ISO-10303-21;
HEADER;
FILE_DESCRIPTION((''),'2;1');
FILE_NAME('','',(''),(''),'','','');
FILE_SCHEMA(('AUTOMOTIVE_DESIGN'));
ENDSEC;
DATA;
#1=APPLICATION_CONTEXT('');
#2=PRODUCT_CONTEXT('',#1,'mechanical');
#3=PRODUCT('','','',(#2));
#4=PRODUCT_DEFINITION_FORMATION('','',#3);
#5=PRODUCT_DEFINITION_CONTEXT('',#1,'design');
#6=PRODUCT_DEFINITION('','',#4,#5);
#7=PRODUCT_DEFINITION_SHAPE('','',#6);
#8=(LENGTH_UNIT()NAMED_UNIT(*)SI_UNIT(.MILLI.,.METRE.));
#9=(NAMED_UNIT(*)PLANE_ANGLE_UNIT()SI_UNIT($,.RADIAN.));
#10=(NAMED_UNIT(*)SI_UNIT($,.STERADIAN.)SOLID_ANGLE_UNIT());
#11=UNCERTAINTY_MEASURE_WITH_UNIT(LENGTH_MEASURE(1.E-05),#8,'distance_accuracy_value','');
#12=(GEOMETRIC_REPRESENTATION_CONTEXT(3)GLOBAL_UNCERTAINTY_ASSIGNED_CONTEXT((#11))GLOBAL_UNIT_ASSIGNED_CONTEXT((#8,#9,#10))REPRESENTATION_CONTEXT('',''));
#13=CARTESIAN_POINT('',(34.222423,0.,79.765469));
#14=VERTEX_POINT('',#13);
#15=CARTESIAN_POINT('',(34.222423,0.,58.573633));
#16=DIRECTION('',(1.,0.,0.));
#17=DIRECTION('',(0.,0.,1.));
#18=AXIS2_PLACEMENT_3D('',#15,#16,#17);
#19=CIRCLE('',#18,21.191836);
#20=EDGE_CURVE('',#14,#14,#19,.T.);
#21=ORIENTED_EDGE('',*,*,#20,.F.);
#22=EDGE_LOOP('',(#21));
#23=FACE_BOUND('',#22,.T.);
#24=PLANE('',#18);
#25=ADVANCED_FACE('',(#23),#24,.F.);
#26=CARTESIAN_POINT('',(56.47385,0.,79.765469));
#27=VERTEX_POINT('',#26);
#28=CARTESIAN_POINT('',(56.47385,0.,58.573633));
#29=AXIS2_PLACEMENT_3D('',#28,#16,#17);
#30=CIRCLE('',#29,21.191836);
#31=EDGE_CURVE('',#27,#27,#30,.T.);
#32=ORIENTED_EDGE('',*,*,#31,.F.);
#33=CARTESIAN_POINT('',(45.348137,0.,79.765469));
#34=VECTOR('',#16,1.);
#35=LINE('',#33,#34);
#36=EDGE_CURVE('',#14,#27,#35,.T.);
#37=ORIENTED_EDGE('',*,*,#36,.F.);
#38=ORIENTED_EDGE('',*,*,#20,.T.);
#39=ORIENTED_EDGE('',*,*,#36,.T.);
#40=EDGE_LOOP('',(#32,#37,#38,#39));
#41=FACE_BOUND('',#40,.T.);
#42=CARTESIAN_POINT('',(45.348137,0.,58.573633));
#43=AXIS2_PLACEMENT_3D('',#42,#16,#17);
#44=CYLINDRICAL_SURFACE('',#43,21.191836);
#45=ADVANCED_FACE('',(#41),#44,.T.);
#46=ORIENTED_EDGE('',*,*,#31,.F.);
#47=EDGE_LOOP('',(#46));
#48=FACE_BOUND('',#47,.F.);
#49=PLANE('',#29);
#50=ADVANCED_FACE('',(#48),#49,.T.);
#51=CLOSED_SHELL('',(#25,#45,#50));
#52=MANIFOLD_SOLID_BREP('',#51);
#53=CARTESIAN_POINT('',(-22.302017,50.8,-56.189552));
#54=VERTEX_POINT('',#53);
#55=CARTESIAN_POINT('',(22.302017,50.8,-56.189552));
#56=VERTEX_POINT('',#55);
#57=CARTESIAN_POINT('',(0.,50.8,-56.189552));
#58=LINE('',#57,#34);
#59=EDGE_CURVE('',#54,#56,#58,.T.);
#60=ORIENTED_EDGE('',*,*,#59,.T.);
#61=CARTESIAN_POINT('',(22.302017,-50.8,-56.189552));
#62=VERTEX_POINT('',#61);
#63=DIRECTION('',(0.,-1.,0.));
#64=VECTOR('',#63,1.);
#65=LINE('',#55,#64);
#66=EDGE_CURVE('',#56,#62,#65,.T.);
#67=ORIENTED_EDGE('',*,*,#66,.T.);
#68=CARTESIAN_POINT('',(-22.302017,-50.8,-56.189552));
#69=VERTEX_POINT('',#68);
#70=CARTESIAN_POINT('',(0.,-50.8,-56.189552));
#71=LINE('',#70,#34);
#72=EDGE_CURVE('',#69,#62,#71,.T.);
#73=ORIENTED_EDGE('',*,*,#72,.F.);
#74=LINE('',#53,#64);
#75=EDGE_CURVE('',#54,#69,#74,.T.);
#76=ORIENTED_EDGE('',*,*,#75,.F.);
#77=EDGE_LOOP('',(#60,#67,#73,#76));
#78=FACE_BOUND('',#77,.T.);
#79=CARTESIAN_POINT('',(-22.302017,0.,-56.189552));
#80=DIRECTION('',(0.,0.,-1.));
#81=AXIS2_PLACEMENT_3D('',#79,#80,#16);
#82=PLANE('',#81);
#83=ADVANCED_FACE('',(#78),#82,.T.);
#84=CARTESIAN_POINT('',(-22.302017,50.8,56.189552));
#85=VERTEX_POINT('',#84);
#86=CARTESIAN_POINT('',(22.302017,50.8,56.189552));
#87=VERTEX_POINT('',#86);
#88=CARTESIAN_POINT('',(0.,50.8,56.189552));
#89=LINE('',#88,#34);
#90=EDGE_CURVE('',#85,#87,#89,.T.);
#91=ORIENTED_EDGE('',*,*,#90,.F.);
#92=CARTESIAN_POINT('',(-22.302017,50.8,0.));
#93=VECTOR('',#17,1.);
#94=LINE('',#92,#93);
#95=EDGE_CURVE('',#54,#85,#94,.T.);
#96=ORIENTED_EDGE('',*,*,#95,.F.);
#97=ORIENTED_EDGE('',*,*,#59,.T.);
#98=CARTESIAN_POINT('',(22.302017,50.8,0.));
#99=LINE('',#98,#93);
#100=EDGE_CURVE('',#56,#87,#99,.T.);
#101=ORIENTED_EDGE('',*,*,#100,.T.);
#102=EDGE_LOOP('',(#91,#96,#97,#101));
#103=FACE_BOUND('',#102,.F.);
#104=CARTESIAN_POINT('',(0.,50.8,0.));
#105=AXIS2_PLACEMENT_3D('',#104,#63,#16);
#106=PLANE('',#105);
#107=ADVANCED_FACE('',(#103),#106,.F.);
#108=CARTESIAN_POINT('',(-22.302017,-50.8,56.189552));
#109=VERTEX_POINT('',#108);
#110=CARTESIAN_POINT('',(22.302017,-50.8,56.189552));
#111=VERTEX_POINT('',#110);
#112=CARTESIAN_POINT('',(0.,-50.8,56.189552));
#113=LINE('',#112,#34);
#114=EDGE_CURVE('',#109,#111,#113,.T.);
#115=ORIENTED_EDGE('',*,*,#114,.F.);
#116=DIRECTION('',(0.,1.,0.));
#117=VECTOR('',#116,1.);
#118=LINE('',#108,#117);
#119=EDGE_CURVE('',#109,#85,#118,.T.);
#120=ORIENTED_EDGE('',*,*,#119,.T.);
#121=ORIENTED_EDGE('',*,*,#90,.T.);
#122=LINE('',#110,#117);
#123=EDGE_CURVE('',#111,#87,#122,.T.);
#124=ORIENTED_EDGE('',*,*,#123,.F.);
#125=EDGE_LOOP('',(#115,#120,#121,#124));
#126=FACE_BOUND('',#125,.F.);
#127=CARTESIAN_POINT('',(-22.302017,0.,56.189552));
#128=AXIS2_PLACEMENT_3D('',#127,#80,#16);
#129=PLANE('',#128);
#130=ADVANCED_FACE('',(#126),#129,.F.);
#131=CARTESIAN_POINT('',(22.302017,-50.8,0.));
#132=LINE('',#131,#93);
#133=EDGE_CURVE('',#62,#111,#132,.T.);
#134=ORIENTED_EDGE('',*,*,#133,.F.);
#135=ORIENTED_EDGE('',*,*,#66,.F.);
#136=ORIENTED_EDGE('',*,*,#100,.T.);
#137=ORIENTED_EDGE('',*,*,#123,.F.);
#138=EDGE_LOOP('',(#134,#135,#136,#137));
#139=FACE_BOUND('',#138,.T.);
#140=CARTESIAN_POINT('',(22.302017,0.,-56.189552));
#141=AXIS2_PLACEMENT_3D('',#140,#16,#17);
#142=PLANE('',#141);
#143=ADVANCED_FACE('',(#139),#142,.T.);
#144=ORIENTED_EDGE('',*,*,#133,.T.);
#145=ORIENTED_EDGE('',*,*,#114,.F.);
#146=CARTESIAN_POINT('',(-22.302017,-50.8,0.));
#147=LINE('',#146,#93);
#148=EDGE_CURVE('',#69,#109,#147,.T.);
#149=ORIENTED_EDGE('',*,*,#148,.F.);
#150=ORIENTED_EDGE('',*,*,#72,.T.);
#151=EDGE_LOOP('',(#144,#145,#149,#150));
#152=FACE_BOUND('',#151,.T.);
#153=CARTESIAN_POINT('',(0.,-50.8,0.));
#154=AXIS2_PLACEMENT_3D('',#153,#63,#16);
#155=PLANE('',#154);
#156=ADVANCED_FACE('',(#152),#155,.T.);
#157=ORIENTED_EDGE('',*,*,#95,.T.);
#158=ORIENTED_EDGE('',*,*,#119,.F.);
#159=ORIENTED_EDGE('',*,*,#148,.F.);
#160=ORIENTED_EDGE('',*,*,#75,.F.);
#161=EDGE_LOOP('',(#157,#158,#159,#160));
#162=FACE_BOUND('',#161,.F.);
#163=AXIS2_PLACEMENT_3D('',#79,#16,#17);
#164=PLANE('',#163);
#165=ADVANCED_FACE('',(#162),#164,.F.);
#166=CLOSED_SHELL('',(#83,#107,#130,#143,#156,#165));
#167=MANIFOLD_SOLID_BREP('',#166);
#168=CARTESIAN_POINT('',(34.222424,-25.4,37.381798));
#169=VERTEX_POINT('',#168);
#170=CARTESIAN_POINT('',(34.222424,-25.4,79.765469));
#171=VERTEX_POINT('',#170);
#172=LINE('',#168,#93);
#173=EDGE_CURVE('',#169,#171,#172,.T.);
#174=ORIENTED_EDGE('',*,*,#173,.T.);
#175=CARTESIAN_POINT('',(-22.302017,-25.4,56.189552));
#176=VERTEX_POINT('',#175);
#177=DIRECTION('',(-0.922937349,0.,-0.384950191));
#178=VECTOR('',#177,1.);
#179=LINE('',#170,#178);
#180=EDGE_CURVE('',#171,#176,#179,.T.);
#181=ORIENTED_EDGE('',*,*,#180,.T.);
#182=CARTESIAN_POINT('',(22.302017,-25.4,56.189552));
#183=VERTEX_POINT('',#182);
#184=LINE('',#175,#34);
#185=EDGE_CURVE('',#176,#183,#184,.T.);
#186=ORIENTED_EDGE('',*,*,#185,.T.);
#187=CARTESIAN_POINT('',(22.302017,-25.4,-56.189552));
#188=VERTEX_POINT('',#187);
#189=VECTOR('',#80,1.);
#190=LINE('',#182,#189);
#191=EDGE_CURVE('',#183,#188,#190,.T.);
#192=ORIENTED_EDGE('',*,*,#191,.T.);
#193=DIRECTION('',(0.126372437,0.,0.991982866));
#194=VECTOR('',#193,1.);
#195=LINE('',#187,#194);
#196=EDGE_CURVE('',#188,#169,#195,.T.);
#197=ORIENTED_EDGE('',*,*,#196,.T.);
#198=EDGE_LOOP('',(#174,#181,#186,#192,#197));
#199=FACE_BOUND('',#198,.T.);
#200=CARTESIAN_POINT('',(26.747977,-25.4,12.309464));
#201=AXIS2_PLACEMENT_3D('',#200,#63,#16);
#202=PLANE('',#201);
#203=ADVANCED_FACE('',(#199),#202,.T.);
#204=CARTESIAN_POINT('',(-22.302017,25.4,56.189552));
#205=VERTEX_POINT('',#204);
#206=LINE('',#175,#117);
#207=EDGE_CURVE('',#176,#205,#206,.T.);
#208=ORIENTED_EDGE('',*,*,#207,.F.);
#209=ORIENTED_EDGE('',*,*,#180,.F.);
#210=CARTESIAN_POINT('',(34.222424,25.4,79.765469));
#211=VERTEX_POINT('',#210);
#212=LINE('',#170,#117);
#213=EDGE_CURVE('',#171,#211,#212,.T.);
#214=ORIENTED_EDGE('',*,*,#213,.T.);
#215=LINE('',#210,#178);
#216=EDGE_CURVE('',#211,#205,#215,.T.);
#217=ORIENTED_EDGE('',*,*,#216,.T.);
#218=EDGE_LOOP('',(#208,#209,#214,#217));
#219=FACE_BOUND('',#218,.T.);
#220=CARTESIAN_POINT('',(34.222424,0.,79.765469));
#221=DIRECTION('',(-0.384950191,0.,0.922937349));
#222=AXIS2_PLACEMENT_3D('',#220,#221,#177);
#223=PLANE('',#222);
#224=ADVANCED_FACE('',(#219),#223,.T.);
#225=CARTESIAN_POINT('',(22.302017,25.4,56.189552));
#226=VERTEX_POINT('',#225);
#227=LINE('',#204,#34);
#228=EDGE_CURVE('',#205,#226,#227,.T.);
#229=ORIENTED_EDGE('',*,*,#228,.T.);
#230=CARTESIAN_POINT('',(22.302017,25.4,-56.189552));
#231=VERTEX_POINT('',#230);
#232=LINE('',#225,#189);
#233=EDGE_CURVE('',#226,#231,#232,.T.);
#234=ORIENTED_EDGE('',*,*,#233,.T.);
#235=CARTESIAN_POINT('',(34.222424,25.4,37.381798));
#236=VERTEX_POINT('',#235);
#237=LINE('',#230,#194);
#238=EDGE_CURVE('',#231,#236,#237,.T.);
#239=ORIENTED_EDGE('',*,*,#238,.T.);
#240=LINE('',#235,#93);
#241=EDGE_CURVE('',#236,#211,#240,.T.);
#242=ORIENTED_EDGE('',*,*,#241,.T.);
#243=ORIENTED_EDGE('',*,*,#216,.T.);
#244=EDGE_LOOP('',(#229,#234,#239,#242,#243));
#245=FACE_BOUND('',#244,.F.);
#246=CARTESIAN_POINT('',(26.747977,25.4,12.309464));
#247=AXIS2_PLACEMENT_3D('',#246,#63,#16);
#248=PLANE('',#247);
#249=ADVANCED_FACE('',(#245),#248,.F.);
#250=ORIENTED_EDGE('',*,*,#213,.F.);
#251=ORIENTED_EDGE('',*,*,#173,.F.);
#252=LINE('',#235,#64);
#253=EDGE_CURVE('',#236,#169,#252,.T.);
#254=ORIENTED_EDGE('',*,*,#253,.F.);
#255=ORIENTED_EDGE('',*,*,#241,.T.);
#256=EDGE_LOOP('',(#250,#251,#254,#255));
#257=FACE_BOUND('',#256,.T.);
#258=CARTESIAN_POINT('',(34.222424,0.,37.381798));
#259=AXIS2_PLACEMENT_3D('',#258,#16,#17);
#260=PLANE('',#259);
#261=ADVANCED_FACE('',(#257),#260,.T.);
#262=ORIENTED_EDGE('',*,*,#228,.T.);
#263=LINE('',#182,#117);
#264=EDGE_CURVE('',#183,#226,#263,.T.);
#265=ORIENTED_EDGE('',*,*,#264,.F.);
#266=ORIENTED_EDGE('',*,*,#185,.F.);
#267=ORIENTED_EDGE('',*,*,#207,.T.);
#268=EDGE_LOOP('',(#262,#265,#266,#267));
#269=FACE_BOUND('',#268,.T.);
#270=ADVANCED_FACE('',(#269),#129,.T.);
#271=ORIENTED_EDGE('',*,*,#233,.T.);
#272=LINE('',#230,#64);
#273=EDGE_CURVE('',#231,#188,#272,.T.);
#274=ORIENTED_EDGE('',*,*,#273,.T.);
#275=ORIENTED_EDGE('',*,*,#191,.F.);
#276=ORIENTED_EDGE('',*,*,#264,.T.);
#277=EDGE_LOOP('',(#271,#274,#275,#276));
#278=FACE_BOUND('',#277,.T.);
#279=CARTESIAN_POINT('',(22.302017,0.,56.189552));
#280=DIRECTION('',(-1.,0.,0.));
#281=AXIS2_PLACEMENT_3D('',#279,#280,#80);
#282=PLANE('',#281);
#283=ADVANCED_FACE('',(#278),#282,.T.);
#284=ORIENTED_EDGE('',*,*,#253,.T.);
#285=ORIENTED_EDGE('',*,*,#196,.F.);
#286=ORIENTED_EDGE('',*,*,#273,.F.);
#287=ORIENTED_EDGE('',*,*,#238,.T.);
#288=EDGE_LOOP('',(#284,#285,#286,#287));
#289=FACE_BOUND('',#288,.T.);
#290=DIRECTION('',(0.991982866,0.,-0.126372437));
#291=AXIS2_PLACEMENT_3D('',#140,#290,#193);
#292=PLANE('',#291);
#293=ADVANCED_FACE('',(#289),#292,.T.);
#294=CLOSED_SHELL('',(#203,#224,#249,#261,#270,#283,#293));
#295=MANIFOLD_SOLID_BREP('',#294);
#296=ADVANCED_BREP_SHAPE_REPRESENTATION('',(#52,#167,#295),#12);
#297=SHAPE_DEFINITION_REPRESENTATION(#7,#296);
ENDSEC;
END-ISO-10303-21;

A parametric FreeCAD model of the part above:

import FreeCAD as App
import Part
import Sketcher

V = App.Vector
Q = App.Units.Quantity


def add_polygon(sketch, points):
    """Adds a closed chain of lines whose ends are joined by coincident constraints."""
    first, n = sketch.GeometryCount, len(points)
    for a, b in zip(points, points[1:] + points[:1]):
        sketch.addGeometry(Part.LineSegment(App.Vector(*a, 0), App.Vector(*b, 0)), False)
    for i in range(n):
        sketch.addConstraint(Sketcher.Constraint("Coincident", first + i, 2, first + (i + 1) % n, 1))

doc = App.newDocument("Part")
body = doc.addObject("PartDesign::Body", "Body")

# Sketch on XZ plane
sketch1 = body.newObject("Sketcher::SketchObject", "Sketch")
sketch1.AttachmentSupport = (doc.getObject("XZ_Plane"), [""])
sketch1.MapMode = "FlatFace"
add_polygon(sketch1, [(-22, 56), (-22, -56), (22, -56), (22, 56)])  # lines 0-3
sketch1.addConstraint(Sketcher.Constraint("Vertical", 0))
sketch1.addConstraint(Sketcher.Constraint("Horizontal", 1))
sketch1.addConstraint(Sketcher.Constraint("Vertical", 2))
sketch1.addConstraint(Sketcher.Constraint("Horizontal", 3))
sketch1.addConstraint(Sketcher.Constraint("Symmetric", 0, 2, 2, 2, -1, 1))
sketch1.addConstraint(Sketcher.Constraint("DistanceX", 1, 1, 1, 2, 44.604034))
sketch1.addConstraint(Sketcher.Constraint("DistanceY", 0, 2, 0, 1, 112.379104))
pad1 = body.newObject("PartDesign::Pad", "Pad")
pad1.Profile = sketch1
pad1.Length = Q("4 in")
pad1.Midplane = True
body2 = doc.addObject("PartDesign::Body", "Body001")

# Sketch on XZ plane
sketch2 = body2.newObject("Sketcher::SketchObject", "Sketch001")
sketch2.AttachmentSupport = (doc.getObject("XZ_Plane001"), [""])
sketch2.MapMode = "FlatFace"
add_polygon(sketch2, [(34, 80), (34, 59), (56, 59), (56, 80)])  # lines 0-3
sketch2.addGeometry(Part.LineSegment(V(34, 59, 0), V(56, 59, 0)), True)  # axis
sketch2.addConstraint(Sketcher.Constraint("Vertical", 0))
sketch2.addConstraint(Sketcher.Constraint("Horizontal", 1))
sketch2.addConstraint(Sketcher.Constraint("Vertical", 2))
sketch2.addConstraint(Sketcher.Constraint("Horizontal", 3))
sketch2.addConstraint(Sketcher.Constraint("Horizontal", 4))
sketch2.addConstraint(Sketcher.Constraint("Coincident", 4, 1, 0, 2))
sketch2.addConstraint(Sketcher.Constraint("Vertical", 2, 2, 4, 2))
sketch2.addConstraint(Sketcher.Constraint("DistanceX", 1, 1, 1, 2, 22.251427))
sketch2.addConstraint(Sketcher.Constraint("DistanceY", 0, 2, 0, 1, 21.191836))
sketch2.addConstraint(Sketcher.Constraint("DistanceX", -1, 1, 1, 2, 56.47385))
sketch2.addConstraint(Sketcher.Constraint("DistanceY", -1, 1, 2, 2, 79.765469))
revolution = body2.newObject("PartDesign::Revolution", "Revolution")
revolution.Profile = sketch2
revolution.ReferenceAxis = (sketch2, ["Axis0"])
revolution.Angle = 360
body3 = doc.addObject("PartDesign::Body", "Body002")

# Sketch on XZ plane
sketch3 = body3.newObject("Sketcher::SketchObject", "Sketch002")
sketch3.AttachmentSupport = (doc.getObject("XZ_Plane002"), [""])
sketch3.MapMode = "FlatFace"
add_polygon(sketch3, [(22, 56), (22, -56), (34, 37), (34, 80), (-22, 56)])  # lines 0-4
sketch3.addConstraint(Sketcher.Constraint("Vertical", 0))
sketch3.addConstraint(Sketcher.Constraint("Vertical", 2))
sketch3.addConstraint(Sketcher.Constraint("Horizontal", 4))
sketch3.addConstraint(Sketcher.Constraint("Symmetric", 0, 2, 3, 2, -1, 1))
sketch3.addConstraint(Sketcher.Constraint("Angle", 1, Q("82.739981 deg")))
sketch3.addConstraint(Sketcher.Constraint("DistanceY", 2, 1, 2, 2, 42.383671))
sketch3.addConstraint(Sketcher.Constraint("DistanceY", -1, 1, 1, 2, 37.381798))
sketch3.addConstraint(Sketcher.Constraint("Distance", 3, 61.244071))
sketch3.addConstraint(Sketcher.Constraint("DistanceX", 4, 1, 4, 2, 44.604034))
pad2 = body3.newObject("PartDesign::Pad", "Pad001")
pad2.Profile = sketch3
pad2.Length = Q("2 in")
pad2.Midplane = True

doc.recompute()
